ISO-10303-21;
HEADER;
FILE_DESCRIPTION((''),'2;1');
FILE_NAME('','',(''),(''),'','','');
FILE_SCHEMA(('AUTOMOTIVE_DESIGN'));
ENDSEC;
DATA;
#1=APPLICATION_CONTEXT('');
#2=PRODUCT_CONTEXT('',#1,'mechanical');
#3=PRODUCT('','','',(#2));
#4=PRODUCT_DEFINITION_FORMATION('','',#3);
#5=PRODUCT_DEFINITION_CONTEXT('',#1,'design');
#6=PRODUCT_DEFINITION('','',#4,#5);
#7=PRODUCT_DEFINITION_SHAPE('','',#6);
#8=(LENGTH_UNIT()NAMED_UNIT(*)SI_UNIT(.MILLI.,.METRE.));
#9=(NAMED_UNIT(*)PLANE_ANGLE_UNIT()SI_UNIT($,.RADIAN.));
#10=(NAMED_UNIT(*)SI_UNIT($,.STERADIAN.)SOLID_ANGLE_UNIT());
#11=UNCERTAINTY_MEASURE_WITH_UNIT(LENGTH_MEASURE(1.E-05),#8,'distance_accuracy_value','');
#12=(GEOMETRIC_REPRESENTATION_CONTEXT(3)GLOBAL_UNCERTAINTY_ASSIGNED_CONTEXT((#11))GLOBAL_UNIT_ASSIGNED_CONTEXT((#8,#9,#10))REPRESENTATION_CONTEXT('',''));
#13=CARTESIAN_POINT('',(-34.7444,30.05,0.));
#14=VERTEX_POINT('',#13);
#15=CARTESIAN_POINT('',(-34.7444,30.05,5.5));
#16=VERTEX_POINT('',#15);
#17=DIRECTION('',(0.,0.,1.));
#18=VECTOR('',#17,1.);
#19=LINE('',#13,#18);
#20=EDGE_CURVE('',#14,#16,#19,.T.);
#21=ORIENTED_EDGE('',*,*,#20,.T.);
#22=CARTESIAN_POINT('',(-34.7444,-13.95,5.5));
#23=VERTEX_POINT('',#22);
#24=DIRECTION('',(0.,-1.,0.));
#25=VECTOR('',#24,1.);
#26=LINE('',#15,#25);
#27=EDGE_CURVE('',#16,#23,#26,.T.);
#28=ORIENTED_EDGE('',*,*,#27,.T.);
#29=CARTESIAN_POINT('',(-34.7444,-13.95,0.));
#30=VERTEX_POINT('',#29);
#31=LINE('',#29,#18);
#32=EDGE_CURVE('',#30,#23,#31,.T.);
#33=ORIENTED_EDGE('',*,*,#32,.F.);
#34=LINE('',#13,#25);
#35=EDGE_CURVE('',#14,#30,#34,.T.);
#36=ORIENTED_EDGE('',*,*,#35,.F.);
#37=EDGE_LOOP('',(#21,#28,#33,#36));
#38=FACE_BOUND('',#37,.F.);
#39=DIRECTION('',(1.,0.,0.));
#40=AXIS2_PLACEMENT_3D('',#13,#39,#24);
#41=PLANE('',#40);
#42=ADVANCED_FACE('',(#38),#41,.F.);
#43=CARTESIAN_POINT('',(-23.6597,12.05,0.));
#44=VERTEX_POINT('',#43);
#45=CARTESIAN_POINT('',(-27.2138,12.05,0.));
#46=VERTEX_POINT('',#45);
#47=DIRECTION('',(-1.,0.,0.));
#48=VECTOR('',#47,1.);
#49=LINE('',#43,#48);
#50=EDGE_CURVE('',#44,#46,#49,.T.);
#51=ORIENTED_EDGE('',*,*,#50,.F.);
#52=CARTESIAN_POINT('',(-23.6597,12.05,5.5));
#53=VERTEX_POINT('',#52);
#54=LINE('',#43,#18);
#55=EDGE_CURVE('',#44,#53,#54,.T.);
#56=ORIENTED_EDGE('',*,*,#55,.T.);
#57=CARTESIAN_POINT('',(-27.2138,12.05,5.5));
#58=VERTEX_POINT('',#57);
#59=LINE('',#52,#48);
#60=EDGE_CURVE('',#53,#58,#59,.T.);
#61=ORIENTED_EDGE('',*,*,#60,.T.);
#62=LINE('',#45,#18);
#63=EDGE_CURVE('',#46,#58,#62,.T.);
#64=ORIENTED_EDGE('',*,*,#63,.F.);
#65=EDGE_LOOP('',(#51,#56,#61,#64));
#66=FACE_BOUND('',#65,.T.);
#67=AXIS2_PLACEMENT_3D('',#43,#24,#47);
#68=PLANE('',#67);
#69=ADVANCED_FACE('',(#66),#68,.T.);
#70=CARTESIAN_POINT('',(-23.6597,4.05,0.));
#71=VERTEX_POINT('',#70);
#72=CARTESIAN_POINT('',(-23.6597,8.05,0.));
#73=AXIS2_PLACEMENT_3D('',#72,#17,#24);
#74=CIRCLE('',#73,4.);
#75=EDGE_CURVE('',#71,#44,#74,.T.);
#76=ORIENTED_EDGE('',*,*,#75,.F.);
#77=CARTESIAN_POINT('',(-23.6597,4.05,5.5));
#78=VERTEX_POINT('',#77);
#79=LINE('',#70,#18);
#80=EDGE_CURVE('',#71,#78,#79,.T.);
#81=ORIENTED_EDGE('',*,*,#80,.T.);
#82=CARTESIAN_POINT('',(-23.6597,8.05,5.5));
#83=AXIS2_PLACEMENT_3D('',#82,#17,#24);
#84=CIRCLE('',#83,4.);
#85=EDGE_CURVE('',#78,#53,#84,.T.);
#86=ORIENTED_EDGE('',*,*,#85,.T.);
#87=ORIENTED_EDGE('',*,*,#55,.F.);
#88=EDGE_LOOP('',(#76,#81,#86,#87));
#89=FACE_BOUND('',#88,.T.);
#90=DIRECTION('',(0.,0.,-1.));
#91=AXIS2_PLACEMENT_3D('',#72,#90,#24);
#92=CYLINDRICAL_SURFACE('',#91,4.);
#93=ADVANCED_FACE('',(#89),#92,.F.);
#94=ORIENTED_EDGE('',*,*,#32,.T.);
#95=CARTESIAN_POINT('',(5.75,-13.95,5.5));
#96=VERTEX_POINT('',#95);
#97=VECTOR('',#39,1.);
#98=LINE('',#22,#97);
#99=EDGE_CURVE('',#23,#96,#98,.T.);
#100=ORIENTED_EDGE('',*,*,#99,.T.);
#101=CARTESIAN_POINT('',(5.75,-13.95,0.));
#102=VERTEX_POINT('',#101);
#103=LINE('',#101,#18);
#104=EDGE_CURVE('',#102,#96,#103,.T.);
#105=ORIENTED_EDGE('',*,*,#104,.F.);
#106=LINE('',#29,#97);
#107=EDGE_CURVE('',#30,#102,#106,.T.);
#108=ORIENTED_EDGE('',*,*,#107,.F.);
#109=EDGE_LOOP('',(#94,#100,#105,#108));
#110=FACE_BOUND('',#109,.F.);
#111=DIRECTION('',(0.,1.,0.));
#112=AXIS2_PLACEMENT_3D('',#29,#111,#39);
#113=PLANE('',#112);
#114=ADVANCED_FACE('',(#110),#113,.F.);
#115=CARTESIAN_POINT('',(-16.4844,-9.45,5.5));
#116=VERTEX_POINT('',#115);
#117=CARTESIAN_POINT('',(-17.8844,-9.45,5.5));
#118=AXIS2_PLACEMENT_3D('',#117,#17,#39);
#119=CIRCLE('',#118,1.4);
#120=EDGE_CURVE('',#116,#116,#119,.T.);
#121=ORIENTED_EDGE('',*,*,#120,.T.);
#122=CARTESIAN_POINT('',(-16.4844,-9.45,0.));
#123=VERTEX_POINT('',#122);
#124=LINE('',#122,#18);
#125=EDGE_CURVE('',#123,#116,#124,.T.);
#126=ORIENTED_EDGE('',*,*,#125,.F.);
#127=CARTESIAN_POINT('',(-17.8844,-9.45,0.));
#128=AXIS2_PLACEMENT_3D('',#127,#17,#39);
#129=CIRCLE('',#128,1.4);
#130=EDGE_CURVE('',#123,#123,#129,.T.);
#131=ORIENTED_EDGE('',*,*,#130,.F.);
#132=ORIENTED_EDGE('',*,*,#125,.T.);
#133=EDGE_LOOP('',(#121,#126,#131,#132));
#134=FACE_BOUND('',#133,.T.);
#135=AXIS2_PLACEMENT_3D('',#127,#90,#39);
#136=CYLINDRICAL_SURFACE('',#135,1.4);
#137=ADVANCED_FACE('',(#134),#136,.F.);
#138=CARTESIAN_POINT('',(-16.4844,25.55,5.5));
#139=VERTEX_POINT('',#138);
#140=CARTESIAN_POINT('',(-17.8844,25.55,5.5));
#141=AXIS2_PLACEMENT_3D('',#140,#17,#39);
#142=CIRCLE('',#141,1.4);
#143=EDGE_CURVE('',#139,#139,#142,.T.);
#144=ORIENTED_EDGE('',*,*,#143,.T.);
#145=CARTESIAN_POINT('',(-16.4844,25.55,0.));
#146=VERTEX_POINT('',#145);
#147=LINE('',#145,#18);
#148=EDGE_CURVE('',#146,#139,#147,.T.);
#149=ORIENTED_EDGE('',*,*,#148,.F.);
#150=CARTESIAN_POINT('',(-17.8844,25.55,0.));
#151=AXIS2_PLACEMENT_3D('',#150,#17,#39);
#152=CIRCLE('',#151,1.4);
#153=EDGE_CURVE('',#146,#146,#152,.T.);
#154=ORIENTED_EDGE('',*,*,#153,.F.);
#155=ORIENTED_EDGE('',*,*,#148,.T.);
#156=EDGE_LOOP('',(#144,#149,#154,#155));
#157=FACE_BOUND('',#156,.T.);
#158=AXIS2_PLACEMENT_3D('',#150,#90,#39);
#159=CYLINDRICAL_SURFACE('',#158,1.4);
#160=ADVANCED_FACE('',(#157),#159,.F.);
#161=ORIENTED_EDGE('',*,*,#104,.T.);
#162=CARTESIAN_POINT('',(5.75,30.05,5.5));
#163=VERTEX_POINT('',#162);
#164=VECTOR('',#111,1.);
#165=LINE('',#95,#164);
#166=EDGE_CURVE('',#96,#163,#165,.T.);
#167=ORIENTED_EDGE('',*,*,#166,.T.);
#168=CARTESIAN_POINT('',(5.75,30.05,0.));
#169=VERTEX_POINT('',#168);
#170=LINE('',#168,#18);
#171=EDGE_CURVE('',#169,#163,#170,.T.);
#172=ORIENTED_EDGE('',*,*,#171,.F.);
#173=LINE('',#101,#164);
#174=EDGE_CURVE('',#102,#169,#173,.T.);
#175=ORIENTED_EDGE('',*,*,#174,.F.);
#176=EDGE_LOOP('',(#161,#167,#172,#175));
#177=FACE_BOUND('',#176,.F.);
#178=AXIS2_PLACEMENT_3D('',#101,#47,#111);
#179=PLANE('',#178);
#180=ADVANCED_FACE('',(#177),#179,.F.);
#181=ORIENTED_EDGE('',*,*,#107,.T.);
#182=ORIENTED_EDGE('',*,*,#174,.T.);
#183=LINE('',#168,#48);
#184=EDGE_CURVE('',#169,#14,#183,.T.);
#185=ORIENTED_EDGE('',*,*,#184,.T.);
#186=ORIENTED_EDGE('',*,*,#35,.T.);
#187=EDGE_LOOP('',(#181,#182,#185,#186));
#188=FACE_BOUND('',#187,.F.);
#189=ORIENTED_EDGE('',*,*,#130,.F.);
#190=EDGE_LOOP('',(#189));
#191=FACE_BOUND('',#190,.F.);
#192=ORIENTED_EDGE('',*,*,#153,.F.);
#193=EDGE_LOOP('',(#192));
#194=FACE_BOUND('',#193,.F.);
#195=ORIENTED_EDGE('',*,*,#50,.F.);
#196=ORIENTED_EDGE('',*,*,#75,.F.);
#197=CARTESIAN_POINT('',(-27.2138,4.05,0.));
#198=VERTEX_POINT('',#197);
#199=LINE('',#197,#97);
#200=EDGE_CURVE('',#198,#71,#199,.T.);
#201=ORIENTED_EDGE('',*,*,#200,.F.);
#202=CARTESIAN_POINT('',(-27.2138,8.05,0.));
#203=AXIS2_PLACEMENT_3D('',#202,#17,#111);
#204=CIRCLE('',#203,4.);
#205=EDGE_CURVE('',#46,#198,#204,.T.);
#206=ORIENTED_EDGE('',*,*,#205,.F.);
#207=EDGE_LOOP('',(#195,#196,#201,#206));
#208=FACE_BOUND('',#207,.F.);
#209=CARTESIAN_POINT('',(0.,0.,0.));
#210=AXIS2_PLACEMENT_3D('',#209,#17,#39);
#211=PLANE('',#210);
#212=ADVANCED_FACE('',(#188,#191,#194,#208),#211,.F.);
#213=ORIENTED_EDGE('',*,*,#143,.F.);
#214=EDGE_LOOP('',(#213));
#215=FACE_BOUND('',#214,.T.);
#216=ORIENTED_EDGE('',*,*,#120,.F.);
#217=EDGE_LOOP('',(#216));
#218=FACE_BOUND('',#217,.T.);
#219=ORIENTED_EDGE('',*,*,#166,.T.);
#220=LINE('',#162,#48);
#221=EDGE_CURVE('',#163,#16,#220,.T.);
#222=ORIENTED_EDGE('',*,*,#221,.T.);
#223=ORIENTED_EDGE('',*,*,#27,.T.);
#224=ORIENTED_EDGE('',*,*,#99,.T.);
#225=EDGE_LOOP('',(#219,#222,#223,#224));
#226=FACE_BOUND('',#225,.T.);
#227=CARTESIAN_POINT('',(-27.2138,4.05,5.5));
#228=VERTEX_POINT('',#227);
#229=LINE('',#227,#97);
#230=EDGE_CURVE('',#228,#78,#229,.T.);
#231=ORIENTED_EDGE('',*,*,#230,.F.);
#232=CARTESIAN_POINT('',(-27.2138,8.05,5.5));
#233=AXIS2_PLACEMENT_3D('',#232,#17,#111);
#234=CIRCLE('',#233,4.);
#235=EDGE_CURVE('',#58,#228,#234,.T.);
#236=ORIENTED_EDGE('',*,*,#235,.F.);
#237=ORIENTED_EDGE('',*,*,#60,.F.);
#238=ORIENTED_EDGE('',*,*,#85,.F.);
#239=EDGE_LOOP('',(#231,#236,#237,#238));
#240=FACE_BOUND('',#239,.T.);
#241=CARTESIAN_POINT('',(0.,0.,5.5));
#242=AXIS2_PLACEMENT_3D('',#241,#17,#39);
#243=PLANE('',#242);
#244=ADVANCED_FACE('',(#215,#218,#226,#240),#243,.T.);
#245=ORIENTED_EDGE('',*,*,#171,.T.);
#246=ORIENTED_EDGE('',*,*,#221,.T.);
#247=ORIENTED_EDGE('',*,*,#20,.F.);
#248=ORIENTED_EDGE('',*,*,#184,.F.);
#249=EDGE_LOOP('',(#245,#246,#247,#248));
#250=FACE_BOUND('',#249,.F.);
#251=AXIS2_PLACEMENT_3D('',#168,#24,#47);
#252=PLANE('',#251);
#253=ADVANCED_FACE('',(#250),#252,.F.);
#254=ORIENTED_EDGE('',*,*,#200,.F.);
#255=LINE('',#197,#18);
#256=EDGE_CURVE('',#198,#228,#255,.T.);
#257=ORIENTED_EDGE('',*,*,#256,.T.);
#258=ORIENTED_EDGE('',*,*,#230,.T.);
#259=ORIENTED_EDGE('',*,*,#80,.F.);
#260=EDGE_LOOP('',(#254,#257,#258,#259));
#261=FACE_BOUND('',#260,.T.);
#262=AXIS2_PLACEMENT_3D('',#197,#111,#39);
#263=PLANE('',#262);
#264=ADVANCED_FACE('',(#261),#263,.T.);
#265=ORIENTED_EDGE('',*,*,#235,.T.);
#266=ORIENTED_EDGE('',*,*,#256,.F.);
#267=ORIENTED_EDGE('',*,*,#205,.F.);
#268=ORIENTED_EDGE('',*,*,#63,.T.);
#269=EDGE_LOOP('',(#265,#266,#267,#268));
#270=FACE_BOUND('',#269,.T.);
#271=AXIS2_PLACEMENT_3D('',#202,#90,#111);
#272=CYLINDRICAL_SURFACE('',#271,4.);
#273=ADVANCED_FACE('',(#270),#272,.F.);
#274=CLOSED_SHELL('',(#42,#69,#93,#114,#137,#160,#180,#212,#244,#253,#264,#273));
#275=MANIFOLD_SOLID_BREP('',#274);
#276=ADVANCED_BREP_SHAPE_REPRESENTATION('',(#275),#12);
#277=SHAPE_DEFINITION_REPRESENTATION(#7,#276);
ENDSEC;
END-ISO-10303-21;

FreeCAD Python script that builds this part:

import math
import FreeCAD as App
import Part
import Sketcher
Q = App.Units.Quantity


def add_polygon(sketch, points):
    """Adds a closed chain of lines whose ends are joined by coincident constraints."""
    first, n = sketch.GeometryCount, len(points)
    for a, b in zip(points, points[1:] + points[:1]):
        sketch.addGeometry(Part.LineSegment(App.Vector(*a, 0), App.Vector(*b, 0)), False)
    for i in range(n):
        sketch.addConstraint(Sketcher.Constraint("Coincident", first + i, 2, first + (i + 1) % n, 1))

doc = App.newDocument("Part")
body = doc.addObject("PartDesign::Body", "Body")

# Sketch on XY plane
sketch1 = doc.addObject("Sketcher::SketchObject", "Sketch")
body.addObject(sketch1)
sketch1.AttachmentSupport = (doc.XY_Plane, [""])
sketch1.MapMode = "FlatFace"
add_polygon(sketch1, [(5.8, -13.9), (5.8, 30.1), (-34.7, 30.1), (-34.7, -13.9)])  # lines 0-3
sketch1.addGeometry(Part.Circle(App.Vector(-17.9, -9.4, 0), App.Vector(0, 0, 1), 1.4), False)  # 4
sketch1.addGeometry(Part.LineSegment(App.Vector(-27.2, 12.1, 0), App.Vector(-23.7, 12.1, 0)), False)  # 5
sketch1.addGeometry(Part.ArcOfCircle(Part.Circle(App.Vector(-23.7, 8.1, 0), App.Vector(0, 0, 1), 4), math.radians(-90), math.radians(90)), False)  # 6
sketch1.addGeometry(Part.LineSegment(App.Vector(-23.7, 4, 0), App.Vector(-27.2, 4, 0)), False)  # 7
sketch1.addGeometry(Part.ArcOfCircle(Part.Circle(App.Vector(-27.2, 8.1, 0), App.Vector(0, 0, 1), 4), math.radians(90), math.radians(270)), False)  # 8
sketch1.addGeometry(Part.Circle(App.Vector(-17.9, 25.6, 0), App.Vector(0, 0, 1), 1.4), False)  # 9
sketch1.addConstraint([
    Sketcher.Constraint("Tangent", 5, 2, 6, 2),
    Sketcher.Constraint("Tangent", 6, 1, 7, 1),
    Sketcher.Constraint("Tangent", 7, 2, 8, 2),
    Sketcher.Constraint("Tangent", 8, 1, 5, 1),
    Sketcher.Constraint("Vertical", 0),
    Sketcher.Constraint("Horizontal", 1),
    Sketcher.Constraint("Vertical", 2),
    Sketcher.Constraint("Horizontal", 3),
    Sketcher.Constraint("Horizontal", 5),
    Sketcher.Constraint("Horizontal", 7),
    Sketcher.Constraint("Equal", 4, 9),
    Sketcher.Constraint("Vertical", 4, 3, 9, 3),
    Sketcher.Constraint("Radius", 6, Q("4 mm")),
    Sketcher.Constraint("Diameter", 4, Q("2.8 mm")),
    Sketcher.Constraint("DistanceY", 0, 1, 0, 2, Q("44 mm")),
    Sketcher.Constraint("DistanceY", 4, 3, 9, 3, Q("35 mm")),
    Sketcher.Constraint("DistanceY", 6, 3, 0, 2, Q("22 mm")),
    Sketcher.Constraint("DistanceY", 4, 3, 6, 3, Q("17.5 mm")),
    Sketcher.Constraint("DistanceX", 5, 1, 5, 2, Q("3.554 mm")),
    Sketcher.Constraint("DistanceY", 4, 3, -1, 1, Q("9.45 mm")),
    Sketcher.Constraint("DistanceX", -1, 1, 0, 2, Q("5.75 mm")),
    Sketcher.Constraint("DistanceX", 1, 2, 9, 3, Q("16.86 mm")),
    Sketcher.Constraint("DistanceX", 1, 2, 1, 1, Q("40.4944 mm")),
    Sketcher.Constraint("DistanceX", 6, 3, -1, 1, Q("23.6597 mm")),
])
pad1 = doc.addObject("PartDesign::Pad", "Pad")
body.addObject(pad1)
pad1.Profile = sketch1
pad1.Length = 5.5

doc.recompute()
